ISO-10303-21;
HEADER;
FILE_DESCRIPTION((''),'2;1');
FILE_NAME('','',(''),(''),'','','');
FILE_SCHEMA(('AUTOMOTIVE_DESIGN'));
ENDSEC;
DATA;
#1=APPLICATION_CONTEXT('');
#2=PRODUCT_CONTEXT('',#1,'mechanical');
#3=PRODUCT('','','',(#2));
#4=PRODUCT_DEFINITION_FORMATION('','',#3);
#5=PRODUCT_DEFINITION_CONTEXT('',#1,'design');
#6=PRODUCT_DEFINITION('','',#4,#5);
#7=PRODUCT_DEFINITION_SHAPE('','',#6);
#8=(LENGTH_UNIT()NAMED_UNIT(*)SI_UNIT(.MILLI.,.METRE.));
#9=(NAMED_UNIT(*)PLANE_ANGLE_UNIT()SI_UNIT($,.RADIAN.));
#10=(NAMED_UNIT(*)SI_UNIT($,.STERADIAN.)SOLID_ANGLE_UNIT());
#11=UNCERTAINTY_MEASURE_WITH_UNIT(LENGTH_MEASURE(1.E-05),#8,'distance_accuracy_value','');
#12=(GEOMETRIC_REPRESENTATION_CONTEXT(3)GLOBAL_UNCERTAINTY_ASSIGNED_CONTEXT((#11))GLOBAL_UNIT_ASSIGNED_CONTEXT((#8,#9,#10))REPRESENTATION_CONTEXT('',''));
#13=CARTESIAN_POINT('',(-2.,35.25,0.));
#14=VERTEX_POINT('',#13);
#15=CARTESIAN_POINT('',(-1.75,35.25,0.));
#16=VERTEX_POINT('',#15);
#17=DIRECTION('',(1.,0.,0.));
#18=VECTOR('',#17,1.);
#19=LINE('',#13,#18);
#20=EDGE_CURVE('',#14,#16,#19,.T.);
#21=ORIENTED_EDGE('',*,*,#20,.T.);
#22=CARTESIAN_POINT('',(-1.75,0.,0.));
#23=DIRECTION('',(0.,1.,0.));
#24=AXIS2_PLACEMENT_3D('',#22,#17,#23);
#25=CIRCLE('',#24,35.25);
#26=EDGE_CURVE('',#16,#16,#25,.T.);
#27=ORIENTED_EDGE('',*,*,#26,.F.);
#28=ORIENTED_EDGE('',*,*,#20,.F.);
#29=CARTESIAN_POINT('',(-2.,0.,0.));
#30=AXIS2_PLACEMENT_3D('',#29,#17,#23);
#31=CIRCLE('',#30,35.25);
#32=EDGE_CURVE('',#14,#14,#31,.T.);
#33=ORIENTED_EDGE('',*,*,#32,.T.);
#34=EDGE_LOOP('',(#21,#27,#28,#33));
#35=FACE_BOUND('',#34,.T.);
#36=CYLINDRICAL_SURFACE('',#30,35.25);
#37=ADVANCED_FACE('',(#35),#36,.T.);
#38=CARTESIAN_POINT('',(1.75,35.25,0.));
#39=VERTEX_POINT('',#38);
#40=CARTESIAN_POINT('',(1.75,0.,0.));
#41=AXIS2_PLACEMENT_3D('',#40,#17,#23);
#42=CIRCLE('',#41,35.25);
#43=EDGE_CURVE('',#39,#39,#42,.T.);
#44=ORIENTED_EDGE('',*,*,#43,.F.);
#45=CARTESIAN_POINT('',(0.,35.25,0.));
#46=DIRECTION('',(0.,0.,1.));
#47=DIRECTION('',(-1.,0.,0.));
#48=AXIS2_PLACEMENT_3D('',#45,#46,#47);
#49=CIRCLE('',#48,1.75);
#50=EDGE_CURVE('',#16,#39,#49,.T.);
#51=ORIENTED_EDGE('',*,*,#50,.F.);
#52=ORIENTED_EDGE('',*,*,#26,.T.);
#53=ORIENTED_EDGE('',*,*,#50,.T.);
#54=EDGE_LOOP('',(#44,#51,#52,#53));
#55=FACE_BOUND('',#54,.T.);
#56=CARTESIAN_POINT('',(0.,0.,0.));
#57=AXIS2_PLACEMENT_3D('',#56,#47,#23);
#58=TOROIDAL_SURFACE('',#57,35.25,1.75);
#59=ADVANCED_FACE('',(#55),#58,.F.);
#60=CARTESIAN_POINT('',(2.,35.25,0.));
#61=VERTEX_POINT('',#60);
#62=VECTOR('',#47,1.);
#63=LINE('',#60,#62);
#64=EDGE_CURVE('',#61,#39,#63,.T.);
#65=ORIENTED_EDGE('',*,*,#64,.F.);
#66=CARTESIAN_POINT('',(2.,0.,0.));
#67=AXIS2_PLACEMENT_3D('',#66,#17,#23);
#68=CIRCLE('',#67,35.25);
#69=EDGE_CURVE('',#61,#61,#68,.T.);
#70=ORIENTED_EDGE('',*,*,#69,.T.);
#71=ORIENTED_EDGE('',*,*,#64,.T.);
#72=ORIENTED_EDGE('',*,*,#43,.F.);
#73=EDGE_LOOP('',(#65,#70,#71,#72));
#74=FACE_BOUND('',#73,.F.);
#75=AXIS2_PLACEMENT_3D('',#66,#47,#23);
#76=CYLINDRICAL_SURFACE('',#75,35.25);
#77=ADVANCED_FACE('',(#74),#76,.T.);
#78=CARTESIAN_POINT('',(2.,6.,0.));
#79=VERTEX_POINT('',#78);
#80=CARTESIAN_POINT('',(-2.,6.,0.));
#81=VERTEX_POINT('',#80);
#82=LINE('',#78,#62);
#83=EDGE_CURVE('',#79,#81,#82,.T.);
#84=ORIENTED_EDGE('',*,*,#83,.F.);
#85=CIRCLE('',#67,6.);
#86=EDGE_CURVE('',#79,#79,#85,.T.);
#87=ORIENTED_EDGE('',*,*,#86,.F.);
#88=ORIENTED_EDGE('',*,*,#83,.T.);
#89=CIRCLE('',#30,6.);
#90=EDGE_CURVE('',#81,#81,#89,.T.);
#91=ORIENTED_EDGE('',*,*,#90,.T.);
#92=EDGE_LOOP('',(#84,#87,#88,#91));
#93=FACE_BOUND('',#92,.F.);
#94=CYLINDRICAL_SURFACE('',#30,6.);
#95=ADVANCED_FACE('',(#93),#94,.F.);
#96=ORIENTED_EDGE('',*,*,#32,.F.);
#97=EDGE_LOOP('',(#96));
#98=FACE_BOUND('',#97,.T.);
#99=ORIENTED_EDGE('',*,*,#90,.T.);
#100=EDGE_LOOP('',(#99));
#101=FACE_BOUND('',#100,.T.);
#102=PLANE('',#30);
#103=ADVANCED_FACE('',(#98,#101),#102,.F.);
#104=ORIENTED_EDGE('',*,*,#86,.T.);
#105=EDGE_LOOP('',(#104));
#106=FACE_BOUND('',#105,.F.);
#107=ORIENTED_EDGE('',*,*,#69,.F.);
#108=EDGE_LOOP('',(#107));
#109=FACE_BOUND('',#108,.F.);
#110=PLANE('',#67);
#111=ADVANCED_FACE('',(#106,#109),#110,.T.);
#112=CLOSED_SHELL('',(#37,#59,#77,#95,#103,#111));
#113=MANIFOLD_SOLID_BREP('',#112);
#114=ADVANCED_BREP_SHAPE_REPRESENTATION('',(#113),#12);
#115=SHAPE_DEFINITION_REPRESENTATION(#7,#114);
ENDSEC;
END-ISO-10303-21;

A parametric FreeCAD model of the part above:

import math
import FreeCAD as App
import Part
import Sketcher
Q = App.Units.Quantity

doc = App.newDocument("Part")
body = doc.addObject("PartDesign::Body", "Body")

sketch1 = body.newObject("Sketcher::SketchObject", "Sketch")
sketch1.AttachmentSupport = (doc.getObject("XY_Plane"), [""])
sketch1.MapMode = "FlatFace"
sketch1.addGeometry([
    Part.LineSegment(App.Vector(-2, 35.25, 0), App.Vector(-2, 6, 0)),
    Part.LineSegment(App.Vector(-2, 6, 0), App.Vector(2, 6, 0)),
    Part.LineSegment(App.Vector(2, 6, 0), App.Vector(2, 35.25, 0)),
    Part.LineSegment(App.Vector(2, 35.25, 0), App.Vector(1.75, 35.25, 0)),
    Part.ArcOfCircle(Part.Circle(App.Vector(0, 35.25, 0), App.Vector(0, 0, 1), 1.75), math.radians(180), math.radians(360)),
    Part.LineSegment(App.Vector(-1.75, 35.25, 0), App.Vector(-2, 35.25, 0)),
], False)
sketch1.addConstraint([
    Sketcher.Constraint("Coincident", 0, 2, 1, 1),
    Sketcher.Constraint("Coincident", 1, 2, 2, 1),
    Sketcher.Constraint("Coincident", 2, 2, 3, 1),
    Sketcher.Constraint("Coincident", 3, 2, 4, 2),
    Sketcher.Constraint("Coincident", 4, 1, 5, 1),
    Sketcher.Constraint("Coincident", 5, 2, 0, 1),
    Sketcher.Constraint("Vertical", 0),
    Sketcher.Constraint("Horizontal", 1),
    Sketcher.Constraint("Vertical", 2),
    Sketcher.Constraint("Horizontal", 3),
    Sketcher.Constraint("Horizontal", 5),
    Sketcher.Constraint("Symmetric", 3, 2, 4, 1, -2),
    Sketcher.Constraint("Horizontal", 4, 3, 2, 2),
    Sketcher.Constraint("Equal", 3, 5),
    Sketcher.Constraint("DistanceX", 1, 1, 1, 2, Q("4 mm")),
    Sketcher.Constraint("Radius", 4, Q("1.75 mm")),
    Sketcher.Constraint("DistanceY", -1, 1, 0, 2, Q("6 mm")),
    Sketcher.Constraint("DistanceY", 0, 2, 0, 1, Q("29.25 mm")),
])
revolution = body.newObject("PartDesign::Revolution", "Revolution")
revolution.Profile = sketch1
revolution.ReferenceAxis = (sketch1, ["H_Axis"])
revolution.Angle = 360

doc.recompute()
